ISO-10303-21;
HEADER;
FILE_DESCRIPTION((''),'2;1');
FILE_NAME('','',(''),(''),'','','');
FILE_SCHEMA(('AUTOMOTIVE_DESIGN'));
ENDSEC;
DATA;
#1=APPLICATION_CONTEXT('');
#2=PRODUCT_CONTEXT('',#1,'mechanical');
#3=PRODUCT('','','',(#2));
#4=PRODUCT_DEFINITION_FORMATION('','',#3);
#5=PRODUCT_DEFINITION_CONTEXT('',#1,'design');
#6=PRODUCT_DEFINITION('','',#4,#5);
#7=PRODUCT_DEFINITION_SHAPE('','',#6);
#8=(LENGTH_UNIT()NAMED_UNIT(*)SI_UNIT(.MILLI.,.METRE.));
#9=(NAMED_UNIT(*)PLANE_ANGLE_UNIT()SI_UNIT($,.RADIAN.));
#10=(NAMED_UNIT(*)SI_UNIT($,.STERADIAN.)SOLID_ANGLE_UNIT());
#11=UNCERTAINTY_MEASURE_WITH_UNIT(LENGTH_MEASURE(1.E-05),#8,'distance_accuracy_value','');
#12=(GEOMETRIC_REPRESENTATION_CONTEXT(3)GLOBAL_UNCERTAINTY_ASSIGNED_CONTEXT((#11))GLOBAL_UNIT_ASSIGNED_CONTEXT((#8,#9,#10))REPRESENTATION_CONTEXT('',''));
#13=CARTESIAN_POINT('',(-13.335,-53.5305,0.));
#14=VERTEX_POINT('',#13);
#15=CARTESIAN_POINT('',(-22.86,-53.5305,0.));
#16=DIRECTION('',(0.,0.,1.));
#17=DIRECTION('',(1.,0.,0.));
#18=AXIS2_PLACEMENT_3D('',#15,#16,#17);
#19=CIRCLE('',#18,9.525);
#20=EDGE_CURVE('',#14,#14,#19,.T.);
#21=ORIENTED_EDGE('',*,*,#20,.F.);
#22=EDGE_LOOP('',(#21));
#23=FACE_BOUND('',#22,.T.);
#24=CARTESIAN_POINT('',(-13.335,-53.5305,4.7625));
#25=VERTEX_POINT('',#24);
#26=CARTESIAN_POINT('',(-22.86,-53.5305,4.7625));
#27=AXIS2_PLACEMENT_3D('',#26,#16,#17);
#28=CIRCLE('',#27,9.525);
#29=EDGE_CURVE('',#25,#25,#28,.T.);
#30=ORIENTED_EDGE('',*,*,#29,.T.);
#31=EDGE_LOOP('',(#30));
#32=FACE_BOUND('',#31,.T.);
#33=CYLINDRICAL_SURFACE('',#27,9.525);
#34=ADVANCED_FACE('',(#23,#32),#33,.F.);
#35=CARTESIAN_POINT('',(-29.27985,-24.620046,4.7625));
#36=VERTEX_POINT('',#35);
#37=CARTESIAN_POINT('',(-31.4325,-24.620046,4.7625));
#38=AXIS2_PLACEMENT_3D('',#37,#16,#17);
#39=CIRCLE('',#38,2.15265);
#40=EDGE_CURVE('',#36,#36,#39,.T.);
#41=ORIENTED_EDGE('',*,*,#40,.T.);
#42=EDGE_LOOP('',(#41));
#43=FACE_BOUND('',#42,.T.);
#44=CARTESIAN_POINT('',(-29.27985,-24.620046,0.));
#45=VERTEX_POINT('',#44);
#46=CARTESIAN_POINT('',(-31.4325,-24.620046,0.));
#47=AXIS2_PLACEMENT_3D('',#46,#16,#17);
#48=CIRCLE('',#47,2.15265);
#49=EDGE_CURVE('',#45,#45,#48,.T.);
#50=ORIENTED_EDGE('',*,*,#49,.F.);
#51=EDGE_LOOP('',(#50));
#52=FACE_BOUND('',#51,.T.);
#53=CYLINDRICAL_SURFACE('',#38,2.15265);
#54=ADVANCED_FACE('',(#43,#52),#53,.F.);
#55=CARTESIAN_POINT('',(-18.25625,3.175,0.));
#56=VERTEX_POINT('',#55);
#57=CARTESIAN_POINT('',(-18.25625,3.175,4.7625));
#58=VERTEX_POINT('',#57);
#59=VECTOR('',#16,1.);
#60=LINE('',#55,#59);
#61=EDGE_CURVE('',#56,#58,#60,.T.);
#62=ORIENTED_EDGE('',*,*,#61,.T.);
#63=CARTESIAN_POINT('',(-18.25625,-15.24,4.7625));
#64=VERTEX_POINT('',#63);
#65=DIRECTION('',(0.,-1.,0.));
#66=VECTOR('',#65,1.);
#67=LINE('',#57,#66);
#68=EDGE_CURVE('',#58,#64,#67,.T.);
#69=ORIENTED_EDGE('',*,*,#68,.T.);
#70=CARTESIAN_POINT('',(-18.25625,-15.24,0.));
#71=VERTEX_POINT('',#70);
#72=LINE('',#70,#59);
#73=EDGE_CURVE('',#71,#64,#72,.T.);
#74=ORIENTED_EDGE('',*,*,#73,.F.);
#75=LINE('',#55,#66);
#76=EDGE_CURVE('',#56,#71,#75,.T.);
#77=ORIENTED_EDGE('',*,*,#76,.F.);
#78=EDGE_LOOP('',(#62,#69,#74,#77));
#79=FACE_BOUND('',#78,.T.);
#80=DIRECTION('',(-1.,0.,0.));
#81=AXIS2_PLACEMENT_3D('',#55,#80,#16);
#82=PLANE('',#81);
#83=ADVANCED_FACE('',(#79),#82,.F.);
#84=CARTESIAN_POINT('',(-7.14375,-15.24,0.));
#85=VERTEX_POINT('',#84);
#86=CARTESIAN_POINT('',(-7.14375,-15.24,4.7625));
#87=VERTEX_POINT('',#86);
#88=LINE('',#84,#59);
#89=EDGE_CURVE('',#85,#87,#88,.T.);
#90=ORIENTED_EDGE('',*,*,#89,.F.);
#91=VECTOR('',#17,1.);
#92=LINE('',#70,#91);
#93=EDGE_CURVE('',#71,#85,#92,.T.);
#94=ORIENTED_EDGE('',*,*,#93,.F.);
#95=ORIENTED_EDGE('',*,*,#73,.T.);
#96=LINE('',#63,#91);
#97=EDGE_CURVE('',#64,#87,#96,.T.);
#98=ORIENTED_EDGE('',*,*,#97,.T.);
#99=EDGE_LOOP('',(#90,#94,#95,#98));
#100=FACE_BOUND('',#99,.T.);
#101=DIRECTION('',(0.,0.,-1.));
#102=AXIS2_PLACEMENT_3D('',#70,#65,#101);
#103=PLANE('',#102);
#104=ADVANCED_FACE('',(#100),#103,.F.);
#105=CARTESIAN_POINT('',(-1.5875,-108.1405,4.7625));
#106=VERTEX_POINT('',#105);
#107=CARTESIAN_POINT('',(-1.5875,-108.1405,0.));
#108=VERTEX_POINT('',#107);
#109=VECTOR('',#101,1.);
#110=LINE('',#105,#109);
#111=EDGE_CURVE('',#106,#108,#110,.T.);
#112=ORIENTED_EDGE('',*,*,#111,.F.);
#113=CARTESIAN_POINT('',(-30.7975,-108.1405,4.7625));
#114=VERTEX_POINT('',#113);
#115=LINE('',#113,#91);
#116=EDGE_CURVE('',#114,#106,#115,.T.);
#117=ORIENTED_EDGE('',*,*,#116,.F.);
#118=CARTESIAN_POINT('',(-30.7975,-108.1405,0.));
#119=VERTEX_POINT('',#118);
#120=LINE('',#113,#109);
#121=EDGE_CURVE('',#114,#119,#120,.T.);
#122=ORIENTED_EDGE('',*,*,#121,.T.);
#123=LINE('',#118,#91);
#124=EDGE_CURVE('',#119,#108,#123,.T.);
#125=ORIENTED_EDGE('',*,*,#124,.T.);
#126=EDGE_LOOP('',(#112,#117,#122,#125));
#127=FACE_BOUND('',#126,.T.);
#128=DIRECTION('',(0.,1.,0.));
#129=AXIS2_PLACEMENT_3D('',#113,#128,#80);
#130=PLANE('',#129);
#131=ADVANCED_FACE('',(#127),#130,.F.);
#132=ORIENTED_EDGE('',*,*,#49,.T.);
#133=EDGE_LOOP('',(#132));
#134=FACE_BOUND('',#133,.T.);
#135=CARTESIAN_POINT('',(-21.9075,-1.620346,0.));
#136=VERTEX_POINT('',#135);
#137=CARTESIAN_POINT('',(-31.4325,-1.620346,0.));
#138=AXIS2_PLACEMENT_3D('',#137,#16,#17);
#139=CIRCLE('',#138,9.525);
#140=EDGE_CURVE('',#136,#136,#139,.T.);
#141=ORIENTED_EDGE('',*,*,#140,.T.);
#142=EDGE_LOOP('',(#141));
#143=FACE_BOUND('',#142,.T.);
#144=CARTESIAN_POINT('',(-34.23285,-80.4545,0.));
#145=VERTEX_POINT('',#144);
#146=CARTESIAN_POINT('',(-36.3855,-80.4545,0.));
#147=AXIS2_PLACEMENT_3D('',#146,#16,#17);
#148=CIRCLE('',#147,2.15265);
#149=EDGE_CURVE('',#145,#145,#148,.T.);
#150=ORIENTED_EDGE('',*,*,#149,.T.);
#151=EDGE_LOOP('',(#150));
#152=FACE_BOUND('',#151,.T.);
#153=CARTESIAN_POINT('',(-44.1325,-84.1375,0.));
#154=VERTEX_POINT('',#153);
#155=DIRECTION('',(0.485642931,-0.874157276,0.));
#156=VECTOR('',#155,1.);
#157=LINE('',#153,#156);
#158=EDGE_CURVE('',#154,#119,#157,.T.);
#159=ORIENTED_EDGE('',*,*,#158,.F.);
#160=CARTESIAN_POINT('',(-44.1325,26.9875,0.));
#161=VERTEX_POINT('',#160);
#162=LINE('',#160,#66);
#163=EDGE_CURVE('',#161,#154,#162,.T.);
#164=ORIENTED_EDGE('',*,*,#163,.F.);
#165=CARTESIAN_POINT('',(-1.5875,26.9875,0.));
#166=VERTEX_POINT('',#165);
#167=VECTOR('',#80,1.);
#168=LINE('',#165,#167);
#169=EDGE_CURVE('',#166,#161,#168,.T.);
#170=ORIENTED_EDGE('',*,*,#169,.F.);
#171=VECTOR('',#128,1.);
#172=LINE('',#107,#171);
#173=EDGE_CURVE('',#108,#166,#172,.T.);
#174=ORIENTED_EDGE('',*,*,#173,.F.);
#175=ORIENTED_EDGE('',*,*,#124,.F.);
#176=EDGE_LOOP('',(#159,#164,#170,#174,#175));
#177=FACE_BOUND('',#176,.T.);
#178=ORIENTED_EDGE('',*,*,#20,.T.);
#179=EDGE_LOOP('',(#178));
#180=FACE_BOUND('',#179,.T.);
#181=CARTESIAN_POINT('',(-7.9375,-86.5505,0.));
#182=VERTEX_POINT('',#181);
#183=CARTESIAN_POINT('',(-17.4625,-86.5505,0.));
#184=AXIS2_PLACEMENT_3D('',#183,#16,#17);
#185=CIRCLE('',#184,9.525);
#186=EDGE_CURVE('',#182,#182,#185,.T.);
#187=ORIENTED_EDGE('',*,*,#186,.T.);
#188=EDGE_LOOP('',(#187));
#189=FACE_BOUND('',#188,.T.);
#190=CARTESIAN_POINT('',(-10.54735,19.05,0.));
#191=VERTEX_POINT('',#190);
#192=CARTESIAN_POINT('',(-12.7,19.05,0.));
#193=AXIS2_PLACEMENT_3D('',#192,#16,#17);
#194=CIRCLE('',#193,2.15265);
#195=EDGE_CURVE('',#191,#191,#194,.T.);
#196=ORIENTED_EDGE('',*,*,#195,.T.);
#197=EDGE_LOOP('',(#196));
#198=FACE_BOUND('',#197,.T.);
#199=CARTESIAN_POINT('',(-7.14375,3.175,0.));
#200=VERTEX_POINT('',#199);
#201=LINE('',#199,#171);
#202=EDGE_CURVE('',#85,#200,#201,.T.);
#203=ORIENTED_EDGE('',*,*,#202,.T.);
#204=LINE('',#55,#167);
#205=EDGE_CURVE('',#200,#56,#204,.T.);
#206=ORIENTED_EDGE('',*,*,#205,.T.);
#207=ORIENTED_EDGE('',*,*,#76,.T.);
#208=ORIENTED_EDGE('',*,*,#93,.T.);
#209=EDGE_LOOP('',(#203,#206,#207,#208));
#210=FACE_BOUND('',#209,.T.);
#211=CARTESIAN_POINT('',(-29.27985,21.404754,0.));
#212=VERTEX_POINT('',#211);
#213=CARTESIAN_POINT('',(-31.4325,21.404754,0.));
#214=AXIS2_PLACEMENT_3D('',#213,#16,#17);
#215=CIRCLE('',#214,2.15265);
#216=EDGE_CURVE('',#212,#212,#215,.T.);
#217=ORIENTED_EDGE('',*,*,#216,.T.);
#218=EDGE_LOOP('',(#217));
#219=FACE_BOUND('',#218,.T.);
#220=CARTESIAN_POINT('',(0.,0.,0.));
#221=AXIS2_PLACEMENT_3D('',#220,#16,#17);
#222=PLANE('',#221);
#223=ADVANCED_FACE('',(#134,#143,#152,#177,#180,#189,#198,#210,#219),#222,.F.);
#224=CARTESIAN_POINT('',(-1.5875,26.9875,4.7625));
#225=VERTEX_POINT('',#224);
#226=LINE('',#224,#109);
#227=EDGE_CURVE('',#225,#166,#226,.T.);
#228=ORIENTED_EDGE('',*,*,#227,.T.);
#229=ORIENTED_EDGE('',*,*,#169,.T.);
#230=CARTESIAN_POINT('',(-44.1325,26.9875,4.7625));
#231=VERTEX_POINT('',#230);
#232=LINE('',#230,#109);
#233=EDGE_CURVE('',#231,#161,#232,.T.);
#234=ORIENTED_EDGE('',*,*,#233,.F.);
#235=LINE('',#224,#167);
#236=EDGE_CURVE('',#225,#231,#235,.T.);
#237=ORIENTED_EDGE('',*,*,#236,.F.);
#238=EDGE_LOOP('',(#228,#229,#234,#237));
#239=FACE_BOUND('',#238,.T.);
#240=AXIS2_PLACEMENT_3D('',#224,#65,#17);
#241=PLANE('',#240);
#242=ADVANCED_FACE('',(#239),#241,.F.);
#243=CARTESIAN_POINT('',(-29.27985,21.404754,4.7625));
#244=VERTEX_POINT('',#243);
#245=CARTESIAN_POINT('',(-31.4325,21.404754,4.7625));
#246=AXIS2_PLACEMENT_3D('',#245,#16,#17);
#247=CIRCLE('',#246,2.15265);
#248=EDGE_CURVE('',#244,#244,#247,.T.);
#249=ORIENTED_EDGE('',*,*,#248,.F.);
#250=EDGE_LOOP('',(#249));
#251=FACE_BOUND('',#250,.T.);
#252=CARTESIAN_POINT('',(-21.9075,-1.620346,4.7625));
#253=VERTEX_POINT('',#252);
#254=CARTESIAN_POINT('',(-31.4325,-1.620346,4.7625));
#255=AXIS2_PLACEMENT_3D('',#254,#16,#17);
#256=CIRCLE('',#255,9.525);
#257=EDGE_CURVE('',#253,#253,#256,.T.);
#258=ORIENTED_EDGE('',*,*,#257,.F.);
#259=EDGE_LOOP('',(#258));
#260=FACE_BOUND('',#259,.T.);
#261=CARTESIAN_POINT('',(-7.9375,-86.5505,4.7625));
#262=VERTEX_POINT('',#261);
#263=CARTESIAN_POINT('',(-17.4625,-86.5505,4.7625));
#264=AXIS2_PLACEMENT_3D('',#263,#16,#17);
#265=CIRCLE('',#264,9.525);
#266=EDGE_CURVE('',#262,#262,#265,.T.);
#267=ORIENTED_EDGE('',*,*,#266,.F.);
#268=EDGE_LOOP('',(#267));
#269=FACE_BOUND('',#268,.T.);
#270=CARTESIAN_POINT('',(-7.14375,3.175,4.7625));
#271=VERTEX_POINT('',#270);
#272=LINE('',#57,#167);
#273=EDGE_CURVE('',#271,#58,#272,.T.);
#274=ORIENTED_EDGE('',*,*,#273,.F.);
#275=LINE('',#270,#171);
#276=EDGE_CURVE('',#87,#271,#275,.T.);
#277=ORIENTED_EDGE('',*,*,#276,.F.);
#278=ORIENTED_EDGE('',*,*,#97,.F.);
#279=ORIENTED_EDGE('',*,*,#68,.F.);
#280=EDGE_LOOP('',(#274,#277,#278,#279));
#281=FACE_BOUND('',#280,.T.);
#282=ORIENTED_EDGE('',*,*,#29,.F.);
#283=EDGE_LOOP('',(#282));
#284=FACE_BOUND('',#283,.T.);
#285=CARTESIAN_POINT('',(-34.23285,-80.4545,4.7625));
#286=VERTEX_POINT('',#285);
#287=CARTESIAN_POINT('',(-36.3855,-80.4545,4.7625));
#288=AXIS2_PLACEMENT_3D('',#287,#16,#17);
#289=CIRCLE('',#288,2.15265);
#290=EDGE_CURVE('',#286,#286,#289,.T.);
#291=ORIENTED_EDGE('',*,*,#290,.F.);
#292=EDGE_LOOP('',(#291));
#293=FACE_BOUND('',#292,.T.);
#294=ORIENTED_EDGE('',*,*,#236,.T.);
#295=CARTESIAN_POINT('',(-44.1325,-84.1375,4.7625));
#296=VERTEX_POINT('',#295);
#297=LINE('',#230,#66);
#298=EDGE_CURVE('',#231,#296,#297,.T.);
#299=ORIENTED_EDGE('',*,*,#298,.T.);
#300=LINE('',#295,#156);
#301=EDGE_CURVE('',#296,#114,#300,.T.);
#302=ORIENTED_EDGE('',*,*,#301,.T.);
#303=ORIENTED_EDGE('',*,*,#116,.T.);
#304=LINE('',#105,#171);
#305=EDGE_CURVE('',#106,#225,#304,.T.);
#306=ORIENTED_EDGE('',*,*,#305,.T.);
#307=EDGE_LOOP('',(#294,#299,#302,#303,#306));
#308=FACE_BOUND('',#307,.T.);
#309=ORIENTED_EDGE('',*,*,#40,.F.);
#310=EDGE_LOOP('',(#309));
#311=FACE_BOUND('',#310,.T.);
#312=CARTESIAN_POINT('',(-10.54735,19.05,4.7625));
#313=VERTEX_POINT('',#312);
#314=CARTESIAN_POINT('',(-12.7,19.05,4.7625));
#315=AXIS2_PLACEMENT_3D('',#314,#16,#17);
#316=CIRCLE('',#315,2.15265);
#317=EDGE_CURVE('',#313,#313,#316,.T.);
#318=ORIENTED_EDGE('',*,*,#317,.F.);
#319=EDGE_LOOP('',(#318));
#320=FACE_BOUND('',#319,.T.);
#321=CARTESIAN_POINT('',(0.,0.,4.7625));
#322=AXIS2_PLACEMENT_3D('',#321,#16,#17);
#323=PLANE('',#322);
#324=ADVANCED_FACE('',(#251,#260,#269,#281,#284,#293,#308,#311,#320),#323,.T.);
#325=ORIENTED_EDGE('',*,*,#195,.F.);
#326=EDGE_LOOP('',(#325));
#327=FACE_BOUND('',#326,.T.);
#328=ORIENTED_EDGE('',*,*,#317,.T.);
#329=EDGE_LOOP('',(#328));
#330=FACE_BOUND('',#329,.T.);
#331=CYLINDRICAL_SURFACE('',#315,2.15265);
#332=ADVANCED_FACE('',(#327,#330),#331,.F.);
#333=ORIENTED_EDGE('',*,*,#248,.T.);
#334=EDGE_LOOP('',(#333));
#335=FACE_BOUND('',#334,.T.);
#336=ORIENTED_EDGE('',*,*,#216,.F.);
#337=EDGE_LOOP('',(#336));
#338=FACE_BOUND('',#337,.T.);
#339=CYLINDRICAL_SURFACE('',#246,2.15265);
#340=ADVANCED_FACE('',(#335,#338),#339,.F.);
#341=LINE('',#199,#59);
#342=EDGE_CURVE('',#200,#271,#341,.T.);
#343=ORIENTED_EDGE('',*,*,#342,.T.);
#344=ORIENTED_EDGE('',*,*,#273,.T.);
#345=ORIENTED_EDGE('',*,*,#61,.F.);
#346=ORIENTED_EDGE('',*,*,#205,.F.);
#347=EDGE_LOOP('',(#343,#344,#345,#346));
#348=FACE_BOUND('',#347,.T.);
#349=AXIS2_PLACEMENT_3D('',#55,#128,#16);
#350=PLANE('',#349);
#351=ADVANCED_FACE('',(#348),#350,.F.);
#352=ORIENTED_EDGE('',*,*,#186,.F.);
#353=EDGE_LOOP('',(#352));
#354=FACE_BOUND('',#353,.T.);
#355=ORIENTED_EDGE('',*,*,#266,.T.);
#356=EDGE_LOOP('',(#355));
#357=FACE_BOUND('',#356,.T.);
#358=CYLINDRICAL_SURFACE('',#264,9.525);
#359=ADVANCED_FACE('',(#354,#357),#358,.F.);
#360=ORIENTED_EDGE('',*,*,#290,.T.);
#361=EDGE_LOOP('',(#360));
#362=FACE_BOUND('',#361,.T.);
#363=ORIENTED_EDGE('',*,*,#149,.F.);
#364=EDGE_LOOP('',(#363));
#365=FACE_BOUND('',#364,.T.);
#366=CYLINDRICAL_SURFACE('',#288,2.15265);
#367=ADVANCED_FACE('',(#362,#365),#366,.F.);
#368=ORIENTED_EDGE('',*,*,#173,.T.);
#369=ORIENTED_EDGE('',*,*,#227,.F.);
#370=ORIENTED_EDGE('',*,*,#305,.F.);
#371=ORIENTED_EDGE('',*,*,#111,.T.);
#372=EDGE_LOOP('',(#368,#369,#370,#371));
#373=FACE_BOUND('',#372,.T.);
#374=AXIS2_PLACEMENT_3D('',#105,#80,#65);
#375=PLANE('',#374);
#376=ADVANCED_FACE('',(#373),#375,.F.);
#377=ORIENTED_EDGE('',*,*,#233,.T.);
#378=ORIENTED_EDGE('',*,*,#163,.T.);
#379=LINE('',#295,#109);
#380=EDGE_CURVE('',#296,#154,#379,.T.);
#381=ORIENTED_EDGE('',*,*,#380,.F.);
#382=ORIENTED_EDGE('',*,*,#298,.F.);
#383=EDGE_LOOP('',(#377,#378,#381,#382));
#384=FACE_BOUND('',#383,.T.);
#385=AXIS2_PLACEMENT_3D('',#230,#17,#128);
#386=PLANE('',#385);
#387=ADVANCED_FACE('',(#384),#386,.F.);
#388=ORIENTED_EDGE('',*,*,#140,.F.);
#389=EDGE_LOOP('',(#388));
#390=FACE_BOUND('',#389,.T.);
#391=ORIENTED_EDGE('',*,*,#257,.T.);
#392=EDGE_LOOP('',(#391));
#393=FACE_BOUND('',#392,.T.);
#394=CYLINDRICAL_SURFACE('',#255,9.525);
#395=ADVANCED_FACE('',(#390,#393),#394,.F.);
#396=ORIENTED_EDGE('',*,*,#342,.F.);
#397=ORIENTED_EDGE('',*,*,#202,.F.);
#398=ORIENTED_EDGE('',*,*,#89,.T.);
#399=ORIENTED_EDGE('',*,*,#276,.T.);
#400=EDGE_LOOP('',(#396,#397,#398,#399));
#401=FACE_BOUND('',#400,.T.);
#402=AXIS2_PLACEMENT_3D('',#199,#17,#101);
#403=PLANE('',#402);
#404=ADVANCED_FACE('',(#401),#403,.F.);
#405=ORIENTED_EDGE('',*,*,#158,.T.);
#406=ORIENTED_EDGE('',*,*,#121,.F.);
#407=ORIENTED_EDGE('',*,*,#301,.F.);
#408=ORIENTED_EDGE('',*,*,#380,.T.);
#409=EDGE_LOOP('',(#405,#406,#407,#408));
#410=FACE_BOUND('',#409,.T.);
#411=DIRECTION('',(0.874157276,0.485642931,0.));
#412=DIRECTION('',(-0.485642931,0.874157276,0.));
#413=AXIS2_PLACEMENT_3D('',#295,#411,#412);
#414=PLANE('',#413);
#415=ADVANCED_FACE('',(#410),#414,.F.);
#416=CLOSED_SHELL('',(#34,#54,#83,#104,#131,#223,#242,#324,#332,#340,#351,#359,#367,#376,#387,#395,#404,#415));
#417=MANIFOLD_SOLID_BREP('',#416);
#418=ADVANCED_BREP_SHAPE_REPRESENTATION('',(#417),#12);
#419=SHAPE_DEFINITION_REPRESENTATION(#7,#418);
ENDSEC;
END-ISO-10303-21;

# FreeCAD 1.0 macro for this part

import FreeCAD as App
import Part
import Sketcher
from FreeCAD import Vector
Q = App.Units.Quantity


def add_polygon(sketch, points):
    """Adds a closed chain of lines whose ends are joined by coincident constraints."""
    first, n = sketch.GeometryCount, len(points)
    for a, b in zip(points, points[1:] + points[:1]):
        sketch.addGeometry(Part.LineSegment(App.Vector(*a, 0), App.Vector(*b, 0)), False)
    for i in range(n):
        sketch.addConstraint(Sketcher.Constraint("Coincident", first + i, 2, first + (i + 1) % n, 1))

doc = App.newDocument("Part")
body = doc.addObject("PartDesign::Body", "Body")

# Sketch on XY plane
sketch1 = body.newObject("Sketcher::SketchObject", "Sketch")
sketch1.AttachmentSupport = (doc.getObject("XY_Plane"), [""])
sketch1.MapMode = "FlatFace"
add_polygon(sketch1, [(-44, -84), (-31, -108), (-2, -108), (-2, 27), (-44, 27)])  # lines 0-4
sketch1.addConstraint(Sketcher.Constraint("Horizontal", 1))
sketch1.addConstraint(Sketcher.Constraint("Vertical", 2))
sketch1.addConstraint(Sketcher.Constraint("Horizontal", 3))
sketch1.addConstraint(Sketcher.Constraint("Vertical", 4))
sketch1.addConstraint(Sketcher.Constraint("DistanceX", 1, 1, 1, 2, Q("1.15 in")))
sketch1.addConstraint(Sketcher.Constraint("DistanceY", 2, 1, 2, 2, Q("5.32 in")))
sketch1.addConstraint(Sketcher.Constraint("DistanceX", 3, 2, 3, 1, Q("1.675 in")))
sketch1.addConstraint(Sketcher.Constraint("DistanceY", 4, 2, 4, 1, Q("4.375 in")))
sketch1.addConstraint(Sketcher.Constraint("DistanceX", 1, 2, -1, 1, Q("0.0625 in")))
sketch1.addConstraint(Sketcher.Constraint("DistanceY", -1, 1, 2, 2, Q("1.0625 in")))
pad1 = body.newObject("PartDesign::Pad", "Pad")
pad1.Profile = sketch1
pad1.Length = Q("0.1875 in")

# Sketch on XY plane
sketch2 = body.newObject("Sketcher::SketchObject", "Sketch001")
sketch2.AttachmentSupport = (doc.getObject("XY_Plane"), [""])
sketch2.MapMode = "FlatFace"
sketch2.AttachmentOffset = App.Placement(Vector(0, 0, 0.1875 * 25.4), App.Rotation())
sketch2.addGeometry(Part.Circle(Vector(-31, -2, 0), Vector(0, 0, 1), 10), False)
sketch2.addGeometry(Part.Circle(Vector(-17, -87, 0), Vector(0, 0, 1), 10), False)
sketch2.addGeometry(Part.Circle(Vector(-23, -54, 0), Vector(0, 0, 1), 10), False)
sketch2.addConstraint(Sketcher.Constraint("Equal", 0, 1))
sketch2.addConstraint(Sketcher.Constraint("Equal", 1, 2))
sketch2.addConstraint(Sketcher.Constraint("Diameter", 0, Q("0.75 in")))
sketch2.addConstraint(Sketcher.Constraint("DistanceX", 2, 3, -1, 1, Q("0.9 in")))
sketch2.addConstraint(Sketcher.Constraint("DistanceY", 1, 3, 2, 3, Q("1.3 in")))
sketch2.addConstraint(Sketcher.Constraint("DistanceX", 0, 3, 1, 3, Q("0.55 in")))
sketch2.addConstraint(Sketcher.Constraint("DistanceX", 1, 3, -1, 1, Q("0.6875 in")))
sketch2.addConstraint(Sketcher.Constraint("DistanceY", 1, 3, -1, 1, Q("3.4075 in")))
sketch2.addConstraint(Sketcher.Constraint("DistanceY", 0, 3, -1, 1, Q("1.620346 mm")))
doc.recompute()
hole = body.newObject("PartDesign::Hole", "Hole")
hole.Profile = sketch2
hole.ThreadType = "None"
hole.Diameter = Q("0.75 in")
hole.DepthType = "ThroughAll"

# Sketch on XY plane
sketch3 = body.newObject("Sketcher::SketchObject", "Sketch002")
sketch3.AttachmentSupport = (doc.getObject("XY_Plane"), [""])
sketch3.MapMode = "FlatFace"
sketch3.AttachmentOffset = App.Placement(Vector(0, 0, 0.1875 * 25.4), App.Rotation())
add_polygon(sketch3, [(-18, 3), (-18, -15), (-7, -15), (-7, 3)])  # lines 0-3
sketch3.addConstraint(Sketcher.Constraint("Vertical", 0))
sketch3.addConstraint(Sketcher.Constraint("Horizontal", 1))
sketch3.addConstraint(Sketcher.Constraint("Vertical", 2))
sketch3.addConstraint(Sketcher.Constraint("Horizontal", 3))
sketch3.addConstraint(Sketcher.Constraint("DistanceY", 0, 2, -1, 1, Q("0.6 in")))
sketch3.addConstraint(Sketcher.Constraint("DistanceX", 1, 1, 1, 2, Q("0.4375 in")))
sketch3.addConstraint(Sketcher.Constraint("DistanceY", 0, 2, 0, 1, Q("0.725 in")))
sketch3.addConstraint(Sketcher.Constraint("DistanceX", 0, 2, -1, 1, Q("0.71875 in")))
pocket1 = body.newObject("PartDesign::Pocket", "Pocket")
pocket1.Profile = sketch3
pocket1.Type = "ThroughAll"

# Sketch on XY plane
sketch4 = body.newObject("Sketcher::SketchObject", "Sketch003")
sketch4.AttachmentSupport = (doc.getObject("XY_Plane"), [""])
sketch4.MapMode = "FlatFace"
sketch4.AttachmentOffset = App.Placement(Vector(0, 0, 0.1875 * 25.4), App.Rotation())
sketch4.addGeometry(Part.Circle(Vector(-36.4, -80.5, 0), Vector(0, 0, 1), 2.2), False)
sketch4.addGeometry(Part.Circle(Vector(-12.7, 19.1, 0), Vector(0, 0, 1), 2.2), False)
sketch4.addGeometry(Part.Circle(Vector(-31.4, 21.4, 0), Vector(0, 0, 1), 2.2), False)
sketch4.addGeometry(Part.Circle(Vector(-31.4, -24.6, 0), Vector(0, 0, 1), 2.2), False)
sketch4.addConstraint(Sketcher.Constraint("Equal", 0, 1))
sketch4.addConstraint(Sketcher.Constraint("Equal", 1, 2))
sketch4.addConstraint(Sketcher.Constraint("Equal", 2, 3))
sketch4.addConstraint(Sketcher.Constraint("Vertical", 2, 3, 3, 3))
sketch4.addConstraint(Sketcher.Constraint("Diameter", 0, Q("0.1695 in")))
sketch4.addConstraint(Sketcher.Constraint("DistanceX", 1, 3, -1, 1, Q("0.5 in")))
sketch4.addConstraint(Sketcher.Constraint("DistanceY", -1, 1, 1, 3, Q("0.75 in")))
sketch4.addConstraint(Sketcher.Constraint("DistanceX", 0, 3, 2, 3, Q("0.195 in")))
sketch4.addConstraint(Sketcher.Constraint("DistanceY", 3, 3, 2, 3, Q("1.812 in")))
sketch4.addConstraint(Sketcher.Constraint("DistanceX", 0, 3, -1, 1, Q("1.4325 in")))
sketch4.addConstraint(Sketcher.Constraint("DistanceY", 0, 3, -1, 1, Q("3.1675 in")))
sketch4.addConstraint(Sketcher.Constraint("DistanceY", -1, 1, 2, 3, Q("21.404754 mm")))
doc.recompute()
hole2 = body.newObject("PartDesign::Hole", "Hole001")
hole2.Profile = sketch4
hole2.ThreadType = "None"
hole2.Diameter = Q("0.1695 in")
hole2.DepthType = "ThroughAll"

doc.recompute()
